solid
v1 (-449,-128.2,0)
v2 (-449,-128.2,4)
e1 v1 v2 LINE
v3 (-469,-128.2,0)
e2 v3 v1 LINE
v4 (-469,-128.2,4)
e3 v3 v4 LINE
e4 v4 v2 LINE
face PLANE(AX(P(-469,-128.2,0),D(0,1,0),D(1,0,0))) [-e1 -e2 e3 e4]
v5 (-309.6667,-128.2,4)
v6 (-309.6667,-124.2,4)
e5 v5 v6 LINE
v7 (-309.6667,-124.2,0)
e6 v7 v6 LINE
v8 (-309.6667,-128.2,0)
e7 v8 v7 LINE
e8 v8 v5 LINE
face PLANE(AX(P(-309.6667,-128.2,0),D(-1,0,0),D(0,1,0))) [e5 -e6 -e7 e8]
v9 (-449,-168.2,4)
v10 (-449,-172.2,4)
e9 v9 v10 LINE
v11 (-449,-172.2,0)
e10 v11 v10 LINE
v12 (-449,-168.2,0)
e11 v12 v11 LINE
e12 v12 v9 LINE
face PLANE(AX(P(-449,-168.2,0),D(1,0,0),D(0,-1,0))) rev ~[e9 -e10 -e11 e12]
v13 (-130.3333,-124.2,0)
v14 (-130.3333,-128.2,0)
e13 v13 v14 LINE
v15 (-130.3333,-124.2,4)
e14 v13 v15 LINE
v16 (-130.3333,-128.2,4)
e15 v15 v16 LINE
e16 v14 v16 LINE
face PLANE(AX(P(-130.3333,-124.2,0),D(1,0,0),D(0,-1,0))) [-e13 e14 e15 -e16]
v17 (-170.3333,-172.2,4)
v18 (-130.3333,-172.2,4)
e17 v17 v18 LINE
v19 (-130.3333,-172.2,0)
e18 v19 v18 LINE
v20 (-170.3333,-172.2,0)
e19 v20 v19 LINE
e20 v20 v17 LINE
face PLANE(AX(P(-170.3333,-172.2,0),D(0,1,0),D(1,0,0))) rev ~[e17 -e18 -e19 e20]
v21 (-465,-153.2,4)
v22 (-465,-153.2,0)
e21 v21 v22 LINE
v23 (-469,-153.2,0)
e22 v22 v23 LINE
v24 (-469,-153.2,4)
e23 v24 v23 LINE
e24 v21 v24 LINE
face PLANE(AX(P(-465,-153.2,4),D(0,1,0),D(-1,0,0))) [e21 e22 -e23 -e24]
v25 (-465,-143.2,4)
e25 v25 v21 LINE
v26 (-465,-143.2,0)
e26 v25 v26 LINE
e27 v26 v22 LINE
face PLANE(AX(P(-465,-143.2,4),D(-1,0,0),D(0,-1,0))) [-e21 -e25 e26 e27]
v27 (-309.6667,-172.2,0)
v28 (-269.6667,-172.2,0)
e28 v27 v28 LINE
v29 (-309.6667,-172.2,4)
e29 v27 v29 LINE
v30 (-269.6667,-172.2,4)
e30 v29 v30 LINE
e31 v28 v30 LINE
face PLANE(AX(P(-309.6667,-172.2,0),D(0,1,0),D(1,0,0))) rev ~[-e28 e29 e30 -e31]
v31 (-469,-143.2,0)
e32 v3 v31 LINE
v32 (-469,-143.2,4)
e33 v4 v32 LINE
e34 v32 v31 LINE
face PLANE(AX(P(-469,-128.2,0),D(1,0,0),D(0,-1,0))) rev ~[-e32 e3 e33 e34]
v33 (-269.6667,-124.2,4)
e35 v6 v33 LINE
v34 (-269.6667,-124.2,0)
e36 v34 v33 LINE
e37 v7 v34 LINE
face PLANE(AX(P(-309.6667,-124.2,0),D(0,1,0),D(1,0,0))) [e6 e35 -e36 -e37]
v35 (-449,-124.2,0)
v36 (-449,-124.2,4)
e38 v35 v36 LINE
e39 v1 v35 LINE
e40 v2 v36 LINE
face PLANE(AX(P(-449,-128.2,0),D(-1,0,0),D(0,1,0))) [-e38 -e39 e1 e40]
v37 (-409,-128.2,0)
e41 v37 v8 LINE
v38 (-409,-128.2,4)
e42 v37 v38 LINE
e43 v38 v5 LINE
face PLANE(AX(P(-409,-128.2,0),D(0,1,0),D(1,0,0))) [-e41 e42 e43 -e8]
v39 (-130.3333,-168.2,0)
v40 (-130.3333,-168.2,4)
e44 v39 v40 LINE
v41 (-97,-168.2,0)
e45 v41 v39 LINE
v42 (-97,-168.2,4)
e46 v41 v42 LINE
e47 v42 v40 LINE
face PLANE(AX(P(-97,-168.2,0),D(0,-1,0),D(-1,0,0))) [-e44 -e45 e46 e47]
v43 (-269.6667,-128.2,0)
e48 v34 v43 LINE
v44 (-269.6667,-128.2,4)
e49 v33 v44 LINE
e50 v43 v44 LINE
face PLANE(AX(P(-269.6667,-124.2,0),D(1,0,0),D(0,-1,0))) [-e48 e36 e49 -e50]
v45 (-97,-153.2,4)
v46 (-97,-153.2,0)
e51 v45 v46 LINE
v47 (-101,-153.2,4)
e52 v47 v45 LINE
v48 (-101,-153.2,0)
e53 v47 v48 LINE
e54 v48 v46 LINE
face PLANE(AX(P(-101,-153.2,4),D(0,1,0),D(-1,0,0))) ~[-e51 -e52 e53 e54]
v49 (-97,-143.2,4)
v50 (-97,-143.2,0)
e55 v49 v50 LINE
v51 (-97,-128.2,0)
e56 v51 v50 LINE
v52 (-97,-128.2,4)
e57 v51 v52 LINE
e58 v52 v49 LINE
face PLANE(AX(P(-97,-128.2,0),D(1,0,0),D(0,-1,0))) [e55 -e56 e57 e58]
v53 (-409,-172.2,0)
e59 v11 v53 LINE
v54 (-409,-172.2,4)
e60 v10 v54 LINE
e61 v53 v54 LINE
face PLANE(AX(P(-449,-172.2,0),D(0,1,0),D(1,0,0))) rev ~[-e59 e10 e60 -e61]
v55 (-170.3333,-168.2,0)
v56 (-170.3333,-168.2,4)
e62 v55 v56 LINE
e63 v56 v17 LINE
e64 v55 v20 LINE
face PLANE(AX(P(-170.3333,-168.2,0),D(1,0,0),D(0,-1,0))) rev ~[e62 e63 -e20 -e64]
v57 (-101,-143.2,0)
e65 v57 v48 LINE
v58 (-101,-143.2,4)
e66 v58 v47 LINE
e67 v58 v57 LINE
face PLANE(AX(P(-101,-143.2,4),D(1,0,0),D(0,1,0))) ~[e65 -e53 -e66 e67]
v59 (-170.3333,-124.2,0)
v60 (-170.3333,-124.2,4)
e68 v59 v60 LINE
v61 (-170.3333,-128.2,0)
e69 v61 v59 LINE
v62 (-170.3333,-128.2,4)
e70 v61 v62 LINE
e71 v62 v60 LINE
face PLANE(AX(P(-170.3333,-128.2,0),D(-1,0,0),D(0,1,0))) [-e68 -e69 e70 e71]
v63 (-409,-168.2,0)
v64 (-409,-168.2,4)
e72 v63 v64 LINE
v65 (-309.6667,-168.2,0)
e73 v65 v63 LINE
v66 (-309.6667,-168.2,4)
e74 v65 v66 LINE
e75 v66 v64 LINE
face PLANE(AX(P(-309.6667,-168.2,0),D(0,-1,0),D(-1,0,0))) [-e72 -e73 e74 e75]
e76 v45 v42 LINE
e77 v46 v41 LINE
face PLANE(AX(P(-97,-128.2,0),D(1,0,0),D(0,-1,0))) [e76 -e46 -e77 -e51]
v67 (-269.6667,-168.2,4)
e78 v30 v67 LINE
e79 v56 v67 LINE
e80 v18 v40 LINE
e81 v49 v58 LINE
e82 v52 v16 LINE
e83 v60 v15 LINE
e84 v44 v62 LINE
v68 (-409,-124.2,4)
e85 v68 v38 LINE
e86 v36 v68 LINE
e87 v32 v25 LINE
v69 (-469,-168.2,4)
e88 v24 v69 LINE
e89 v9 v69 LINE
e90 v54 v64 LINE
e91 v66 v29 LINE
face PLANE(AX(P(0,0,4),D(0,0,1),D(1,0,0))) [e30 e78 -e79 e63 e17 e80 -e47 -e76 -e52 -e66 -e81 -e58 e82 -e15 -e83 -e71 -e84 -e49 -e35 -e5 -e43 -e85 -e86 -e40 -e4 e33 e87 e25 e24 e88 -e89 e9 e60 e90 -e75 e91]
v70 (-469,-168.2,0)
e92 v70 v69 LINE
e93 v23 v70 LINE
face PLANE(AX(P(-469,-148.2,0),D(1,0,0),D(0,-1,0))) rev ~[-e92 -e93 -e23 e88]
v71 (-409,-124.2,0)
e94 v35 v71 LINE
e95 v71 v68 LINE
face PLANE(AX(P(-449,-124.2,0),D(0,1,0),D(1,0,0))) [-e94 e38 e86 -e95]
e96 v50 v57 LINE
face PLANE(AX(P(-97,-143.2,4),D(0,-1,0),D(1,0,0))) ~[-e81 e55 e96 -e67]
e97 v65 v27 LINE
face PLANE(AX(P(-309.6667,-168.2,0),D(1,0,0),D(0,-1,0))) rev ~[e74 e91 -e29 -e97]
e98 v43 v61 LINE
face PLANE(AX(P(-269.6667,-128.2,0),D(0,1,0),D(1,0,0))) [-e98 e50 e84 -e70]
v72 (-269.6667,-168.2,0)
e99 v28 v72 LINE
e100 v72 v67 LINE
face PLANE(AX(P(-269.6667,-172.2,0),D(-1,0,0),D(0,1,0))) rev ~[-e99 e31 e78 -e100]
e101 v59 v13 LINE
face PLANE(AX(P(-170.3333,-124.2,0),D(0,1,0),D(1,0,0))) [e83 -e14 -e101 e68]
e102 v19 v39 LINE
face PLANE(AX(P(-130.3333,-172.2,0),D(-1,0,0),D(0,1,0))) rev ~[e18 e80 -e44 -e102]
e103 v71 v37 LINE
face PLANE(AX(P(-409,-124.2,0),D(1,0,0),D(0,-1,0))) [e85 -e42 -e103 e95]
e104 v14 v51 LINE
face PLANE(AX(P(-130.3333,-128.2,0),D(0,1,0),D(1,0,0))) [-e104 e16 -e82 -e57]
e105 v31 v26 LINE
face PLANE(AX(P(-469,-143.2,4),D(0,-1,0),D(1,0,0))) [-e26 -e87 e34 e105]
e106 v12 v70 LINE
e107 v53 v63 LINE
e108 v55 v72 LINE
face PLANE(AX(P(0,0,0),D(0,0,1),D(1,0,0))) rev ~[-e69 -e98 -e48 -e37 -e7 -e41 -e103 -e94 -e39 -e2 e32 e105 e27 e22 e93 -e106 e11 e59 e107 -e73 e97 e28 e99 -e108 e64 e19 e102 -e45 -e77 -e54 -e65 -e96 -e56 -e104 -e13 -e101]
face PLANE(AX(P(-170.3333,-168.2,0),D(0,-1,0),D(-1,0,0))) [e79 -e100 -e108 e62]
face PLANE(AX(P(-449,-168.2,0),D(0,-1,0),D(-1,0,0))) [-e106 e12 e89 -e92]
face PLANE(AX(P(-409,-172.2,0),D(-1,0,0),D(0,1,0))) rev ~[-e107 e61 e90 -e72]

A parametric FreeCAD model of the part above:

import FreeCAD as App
import Part
import Sketcher

V = App.Vector
Q = App.Units.Quantity


def add_polygon(sketch, points):
    """Adds a closed chain of lines whose ends are joined by coincident constraints."""
    first, n = sketch.GeometryCount, len(points)
    for a, b in zip(points, points[1:] + points[:1]):
        sketch.addGeometry(Part.LineSegment(App.Vector(*a, 0), App.Vector(*b, 0)), False)
    for i in range(n):
        sketch.addConstraint(Sketcher.Constraint("Coincident", first + i, 2, first + (i + 1) % n, 1))

doc = App.newDocument("Part")
body = doc.addObject("PartDesign::Body", "Body")

sketch1 = body.newObject("Sketcher::SketchObject", "Sketch")
sketch1.AttachmentSupport = (doc.getObject("XY_Plane"), [""])
sketch1.MapMode = "FlatFace"
add_polygon(sketch1, [(-449, -128.2), (-469, -128.2), (-469, -168.2), (-449, -168.2), (-449, -172.2), (-409, -172.2), (-409, -168.2), (-309.7, -168.2), (-309.7, -172.2), (-269.7, -172.2), (-269.7, -168.2), (-170.3, -168.2), (-170.3, -172.2), (-130.3, -172.2), (-130.3, -168.2), (-97, -168.2), (-97, -128.2), (-130.3, -128.2), (-130.3, -124.2), (-170.3, -124.2), (-170.3, -128.2), (-269.7, -128.2), (-269.7, -124.2), (-309.7, -124.2), (-309.7, -128.2), (-409, -128.2), (-409, -124.2), (-449, -124.2)])
sketch1.addConstraint([
    Sketcher.Constraint("Horizontal", 0),
    Sketcher.Constraint("Vertical", 1),
    Sketcher.Constraint("Horizontal", 2),
    Sketcher.Constraint("Vertical", 3),
    Sketcher.Constraint("Horizontal", 4),
    Sketcher.Constraint("Vertical", 5),
    Sketcher.Constraint("Horizontal", 6),
    Sketcher.Constraint("Vertical", 7),
    Sketcher.Constraint("Horizontal", 8),
    Sketcher.Constraint("Vertical", 9),
    Sketcher.Constraint("Horizontal", 10),
    Sketcher.Constraint("Vertical", 11),
    Sketcher.Constraint("Horizontal", 12),
    Sketcher.Constraint("Vertical", 13),
    Sketcher.Constraint("Horizontal", 14),
    Sketcher.Constraint("Vertical", 15),
    Sketcher.Constraint("Horizontal", 16),
    Sketcher.Constraint("Vertical", 17),
    Sketcher.Constraint("Horizontal", 18),
    Sketcher.Constraint("Vertical", 19),
    Sketcher.Constraint("Horizontal", 20),
    Sketcher.Constraint("Vertical", 21),
    Sketcher.Constraint("Horizontal", 22),
    Sketcher.Constraint("Vertical", 23),
    Sketcher.Constraint("Horizontal", 24),
    Sketcher.Constraint("Vertical", 25),
    Sketcher.Constraint("Horizontal", 26),
    Sketcher.Constraint("Vertical", 27),
    Sketcher.Constraint("Horizontal", 2, 2, 5, 2),
    Sketcher.Constraint("Horizontal", 4, 2, 7, 2),
    Sketcher.Constraint("Horizontal", 6, 2, 9, 2),
    Sketcher.Constraint("Horizontal", 8, 2, 11, 2),
    Sketcher.Constraint("Horizontal", 10, 2, 13, 2),
    Sketcher.Constraint("Horizontal", 0, 2, 15, 2),
    Sketcher.Constraint("Horizontal", 16, 2, 19, 2),
    Sketcher.Constraint("Horizontal", 18, 2, 21, 2),
    Sketcher.Constraint("Horizontal", 20, 2, 23, 2),
    Sketcher.Constraint("Horizontal", 22, 2, 25, 2),
    Sketcher.Constraint("Vertical", 13, 2, 16, 2),
    Sketcher.Constraint("Vertical", 11, 2, 18, 2),
    Sketcher.Constraint("Vertical", 9, 2, 20, 2),
    Sketcher.Constraint("Vertical", 7, 2, 22, 2),
    Sketcher.Constraint("Vertical", 5, 2, 24, 2),
    Sketcher.Constraint("Vertical", 3, 2, 26, 2),
    Sketcher.Constraint("Equal", 4, 8),
    Sketcher.Constraint("Equal", 6, 10),
    Sketcher.Constraint("Equal", 8, 12),
    Sketcher.Constraint("Equal", 26, 1),
    Sketcher.Constraint("Equal", 13, 17),
    Sketcher.Constraint("DistanceX", 4, 1, 4, 2, Q("40 mm")),
    Sketcher.Constraint("DistanceY", 3, 2, 3, 1, Q("4 mm")),
    Sketcher.Constraint("DistanceX", 0, 2, 0, 1, Q("20 mm")),
    Sketcher.Constraint("DistanceX", 0, 2, -1, 1, Q("469 mm")),
    Sketcher.Constraint("DistanceX", 14, 2, -1, 1, Q("97 mm")),
    Sketcher.Constraint("DistanceY", 0, 2, -1, 1, Q("128.2 mm")),
    Sketcher.Constraint("DistanceX", 6, 1, 6, 2, Q("99.3333 mm")),
])
pad1 = body.newObject("PartDesign::Pad", "Pad")
pad1.Profile = sketch1
pad1.Length = 4

sketch2 = body.newObject("Sketcher::SketchObject", "Sketch001")
sketch2.AttachmentSupport = (doc.getObject("XY_Plane"), [""])
sketch2.MapMode = "FlatFace"
sketch2.AttachmentOffset = App.Placement(V(0, 0, 4), App.Rotation())
add_polygon(sketch2, [(-465, -143.2), (-469, -143.2), (-469, -153.2), (-465, -153.2)])
sketch2.addConstraint([
    Sketcher.Constraint("Horizontal", 0),
    Sketcher.Constraint("Vertical", 1),
    Sketcher.Constraint("Horizontal", 2),
    Sketcher.Constraint("Vertical", 3),
    Sketcher.Constraint("DistanceX", 0, 2, 0, 1, Q("4 mm")),
    Sketcher.Constraint("DistanceY", 1, 2, 1, 1, Q("10 mm")),
    Sketcher.Constraint("DistanceX", 0, 2, -1, 1, Q("469 mm")),
    Sketcher.Constraint("DistanceY", 0, 2, -1, 1, Q("143.2 mm")),
])
pocket1 = body.newObject("PartDesign::Pocket", "Pocket")
pocket1.Profile = sketch2
pocket1.Length = 4
doc.recompute()

datumplane = body.newObject("PartDesign::Plane", "DatumPlane")
datumplane.AttachmentSupport = (doc.getObject("YZ_Plane"), [""])
datumplane.MapMode = "FlatFace"
datumplane.AttachmentOffset = App.Placement(V(0, 0, -283), App.Rotation())
mirrored = body.newObject("PartDesign::Mirrored", "Mirrored")
mirrored.Originals = [pocket1]
mirrored.MirrorPlane = (datumplane, [""])
body.Tip = mirrored

doc.recompute()
